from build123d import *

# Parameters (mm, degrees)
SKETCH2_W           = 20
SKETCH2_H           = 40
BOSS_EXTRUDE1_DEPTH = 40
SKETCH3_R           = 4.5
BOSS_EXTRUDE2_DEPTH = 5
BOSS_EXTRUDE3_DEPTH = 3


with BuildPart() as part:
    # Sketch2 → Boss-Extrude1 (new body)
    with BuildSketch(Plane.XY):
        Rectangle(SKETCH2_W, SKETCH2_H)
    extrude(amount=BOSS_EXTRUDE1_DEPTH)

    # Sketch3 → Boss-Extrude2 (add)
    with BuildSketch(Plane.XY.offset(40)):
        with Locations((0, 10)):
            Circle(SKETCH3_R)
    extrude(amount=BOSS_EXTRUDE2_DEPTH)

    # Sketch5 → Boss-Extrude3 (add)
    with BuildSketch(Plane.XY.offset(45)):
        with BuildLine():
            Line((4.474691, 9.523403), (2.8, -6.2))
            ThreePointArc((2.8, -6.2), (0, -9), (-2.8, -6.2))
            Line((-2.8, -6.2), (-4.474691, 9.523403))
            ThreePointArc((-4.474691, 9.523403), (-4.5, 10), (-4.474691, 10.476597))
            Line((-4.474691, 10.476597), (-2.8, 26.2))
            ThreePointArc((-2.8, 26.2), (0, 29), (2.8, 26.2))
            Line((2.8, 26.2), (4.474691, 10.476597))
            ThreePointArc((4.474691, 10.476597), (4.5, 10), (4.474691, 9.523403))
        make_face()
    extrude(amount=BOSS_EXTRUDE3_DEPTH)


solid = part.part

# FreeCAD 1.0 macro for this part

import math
import FreeCAD as App
import Part
import Sketcher
from FreeCAD import Vector

doc = App.newDocument("Part")
params = doc.addObject("Spreadsheet::Sheet", "Params")
for row, (alias, value) in enumerate([
    ("sketch1_width", "20 mm"),
    ("sketch1_height", "40 mm"),
    ("pad1_length", "40 mm"),
    ("sketch2_diameter", "9 mm"),
    ("pad2_length", "5 mm"),
    ("sketch3_radius", "2.8 mm"),
    ("pad3_length", "3 mm"),
], start=1):
    params.set(f"A{row}", alias)
    params.set(f"B{row}", "=" + value)
    params.setAlias(f"B{row}", alias)

body = doc.addObject("PartDesign::Body", "Body")

# Sketch on XY plane
sketch1 = body.newObject("Sketcher::SketchObject", "Sketch")
sketch1.AttachmentSupport = (doc.getObject("XY_Plane"), [""])
sketch1.MapMode = "FlatFace"
sketch1.addGeometry([
    Part.LineSegment(Vector(-10, 20, 0), Vector(-10, -20, 0)),
    Part.LineSegment(Vector(-10, -20, 0), Vector(10, -20, 0)),
    Part.LineSegment(Vector(10, -20, 0), Vector(10, 20, 0)),
    Part.LineSegment(Vector(10, 20, 0), Vector(-10, 20, 0)),
], False)
sketch1.addConstraint([
    Sketcher.Constraint("Coincident", 0, 2, 1, 1),
    Sketcher.Constraint("Coincident", 1, 2, 2, 1),
    Sketcher.Constraint("Coincident", 2, 2, 3, 1),
    Sketcher.Constraint("Coincident", 3, 2, 0, 1),
    Sketcher.Constraint("Vertical", 0),
    Sketcher.Constraint("Horizontal", 1),
    Sketcher.Constraint("Vertical", 2),
    Sketcher.Constraint("Horizontal", 3),
    Sketcher.Constraint("Symmetric", 0, 2, 2, 2, -1, 1),
    Sketcher.Constraint("DistanceX", 1, 1, 1, 2, 20.0),
    Sketcher.Constraint("DistanceY", 0, 2, 0, 1, 40.0),
])
sketch1.setExpression("Constraints[9]", "Params.sketch1_width")
sketch1.setExpression("Constraints[10]", "Params.sketch1_height")
pad1 = body.newObject("PartDesign::Pad", "Pad")
pad1.Profile = sketch1
pad1.setExpression("Length", "Params.pad1_length")

# Sketch on XY plane
sketch2 = body.newObject("Sketcher::SketchObject", "Sketch001")
sketch2.AttachmentSupport = (doc.getObject("XY_Plane"), [""])
sketch2.MapMode = "FlatFace"
sketch2.AttachmentOffset = App.Placement(Vector(0, 0, 40), App.Rotation())
sketch2.addGeometry(Part.Circle(Vector(0, 10, 0), Vector(0, 0, 1), 4.5), False)
sketch2.addConstraint([
    Sketcher.Constraint("PointOnObject", 0, 3, -2),
    Sketcher.Constraint("Diameter", 0, 9.0),
    Sketcher.Constraint("DistanceY", -1, 1, 0, 3, 10.0),
])
sketch2.setExpression("Constraints[1]", "Params.sketch2_diameter")
pad2 = body.newObject("PartDesign::Pad", "Pad001")
pad2.Profile = sketch2
pad2.setExpression("Length", "Params.pad2_length")

# Sketch on XY plane
sketch3 = body.newObject("Sketcher::SketchObject", "Sketch002")
sketch3.AttachmentSupport = (doc.getObject("XY_Plane"), [""])
sketch3.MapMode = "FlatFace"
sketch3.AttachmentOffset = App.Placement(Vector(0, 0, 45), App.Rotation())
sketch3.addGeometry([
    Part.LineSegment(Vector(2.8, -6.2, 0), Vector(4.474691, 9.523403, 0)),  # 0
    Part.ArcOfCircle(Part.Circle(Vector(-0.000084, 10, 0), Vector(0, 0, 1), 4.500084), math.radians(-6.07951), math.radians(6.07951)),  # 1
    Part.LineSegment(Vector(4.474691, 10.476597, 0), Vector(2.8, 26.2, 0)),  # 2
    Part.ArcOfCircle(Part.Circle(Vector(0, 26.2, 0), Vector(0, 0, 1), 2.8), math.radians(0), math.radians(180)),  # 3
    Part.LineSegment(Vector(-2.8, 26.2, 0), Vector(-4.474691, 10.476597, 0)),  # 4
    Part.ArcOfCircle(Part.Circle(Vector(0.000084, 10, 0), Vector(0, 0, 1), 4.500084), math.radians(173.92049), math.radians(186.07951)),  # 5
    Part.LineSegment(Vector(-4.474691, 9.523403, 0), Vector(-2.8, -6.2, 0)),  # 6
    Part.ArcOfCircle(Part.Circle(Vector(0, -6.2, 0), Vector(0, 0, 1), 2.8), math.radians(180), math.radians(360)),  # 7
], False)
sketch3.addConstraint([
    Sketcher.Constraint("Tangent", 0, 2, 1, 1),
    Sketcher.Constraint("Tangent", 1, 2, 2, 1),
    Sketcher.Constraint("Coincident", 2, 2, 3, 1),
    Sketcher.Constraint("Coincident", 3, 2, 4, 1),
    Sketcher.Constraint("Tangent", 4, 2, 5, 1),
    Sketcher.Constraint("Tangent", 5, 2, 6, 1),
    Sketcher.Constraint("Coincident", 6, 2, 7, 1),
    Sketcher.Constraint("Coincident", 7, 2, 0, 1),
    Sketcher.Constraint("Equal", 1, 5),
    Sketcher.Constraint("Equal", 3, 7),
    Sketcher.Constraint("Symmetric", 1, 3, 5, 3, -2),
    Sketcher.Constraint("Symmetric", 2, 2, 3, 2, -2),
    Sketcher.Constraint("Symmetric", 6, 2, 7, 2, -2),
    Sketcher.Constraint("Parallel", 0, 4),
    Sketcher.Constraint("Horizontal", 3, 3, 2, 2),
    Sketcher.Constraint("Horizontal", 7, 3, 6, 2),
    Sketcher.Constraint("Radius", 3, 2.8),
    Sketcher.Constraint("DistanceY", -1, 1, 1, 3, 10.0),
    Sketcher.Constraint("DistanceY", -1, 1, 3, 3, 26.2),
    Sketcher.Constraint("Radius", 1, 4.500084),
    Sketcher.Constraint("DistanceX", -1, 1, 0, 2, 4.474691),
])
sketch3.setExpression("Constraints[16]", "Params.sketch3_radius")
pad3 = body.newObject("PartDesign::Pad", "Pad002")
pad3.Profile = sketch3
pad3.setExpression("Length", "Params.pad3_length")

doc.recompute()
